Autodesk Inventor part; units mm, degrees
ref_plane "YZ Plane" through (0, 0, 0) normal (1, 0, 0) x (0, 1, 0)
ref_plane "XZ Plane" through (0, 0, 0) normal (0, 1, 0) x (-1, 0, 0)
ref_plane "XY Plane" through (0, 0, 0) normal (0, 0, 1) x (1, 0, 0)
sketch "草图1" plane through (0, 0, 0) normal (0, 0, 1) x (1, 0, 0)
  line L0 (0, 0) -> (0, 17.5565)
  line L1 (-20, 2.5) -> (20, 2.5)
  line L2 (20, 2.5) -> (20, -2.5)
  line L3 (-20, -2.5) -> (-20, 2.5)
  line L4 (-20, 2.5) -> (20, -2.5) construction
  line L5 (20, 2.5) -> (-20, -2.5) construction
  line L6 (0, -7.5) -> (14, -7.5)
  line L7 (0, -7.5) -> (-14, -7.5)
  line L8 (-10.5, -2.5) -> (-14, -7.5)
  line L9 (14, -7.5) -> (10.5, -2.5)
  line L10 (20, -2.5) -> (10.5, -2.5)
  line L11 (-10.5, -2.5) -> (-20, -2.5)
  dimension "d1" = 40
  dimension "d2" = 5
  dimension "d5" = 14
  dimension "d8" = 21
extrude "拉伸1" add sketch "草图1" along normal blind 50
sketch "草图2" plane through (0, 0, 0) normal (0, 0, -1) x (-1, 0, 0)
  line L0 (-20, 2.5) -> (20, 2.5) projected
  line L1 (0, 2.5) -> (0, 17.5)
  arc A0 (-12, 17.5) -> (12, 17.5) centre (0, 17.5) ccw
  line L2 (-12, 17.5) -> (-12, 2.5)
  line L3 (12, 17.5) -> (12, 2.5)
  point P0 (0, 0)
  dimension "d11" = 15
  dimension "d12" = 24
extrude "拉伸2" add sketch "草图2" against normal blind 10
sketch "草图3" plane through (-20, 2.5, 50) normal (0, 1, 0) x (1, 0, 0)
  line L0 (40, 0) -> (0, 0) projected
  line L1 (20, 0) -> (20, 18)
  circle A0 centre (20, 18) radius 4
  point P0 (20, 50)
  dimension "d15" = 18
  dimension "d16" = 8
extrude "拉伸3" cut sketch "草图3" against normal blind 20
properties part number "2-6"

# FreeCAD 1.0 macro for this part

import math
import FreeCAD as App
import Part
import Sketcher
from FreeCAD import Vector


def add_polygon(sketch, points):
    """Adds a closed chain of lines whose ends are joined by coincident constraints."""
    first, n = sketch.GeometryCount, len(points)
    for a, b in zip(points, points[1:] + points[:1]):
        sketch.addGeometry(Part.LineSegment(App.Vector(*a, 0), App.Vector(*b, 0)), False)
    for i in range(n):
        sketch.addConstraint(Sketcher.Constraint("Coincident", first + i, 2, first + (i + 1) % n, 1))

doc = App.newDocument("Part")
body = doc.addObject("PartDesign::Body", "Body")

sketch1 = body.newObject("Sketcher::SketchObject", "Sketch")
sketch1.AttachmentSupport = (doc.getObject("XY_Plane"), [""])
sketch1.MapMode = "FlatFace"
add_polygon(sketch1, [(20, 2.5), (-20, 2.5), (-20, -2.5), (-10.5, -2.5), (-14, -7.5), (14, -7.5), (10.5, -2.5), (20, -2.5)])
sketch1.addConstraint([
    Sketcher.Constraint("Horizontal", 0),
    Sketcher.Constraint("Vertical", 1),
    Sketcher.Constraint("Horizontal", 2),
    Sketcher.Constraint("Horizontal", 4),
    Sketcher.Constraint("Horizontal", 6),
    Sketcher.Constraint("Vertical", 7),
    Sketcher.Constraint("Symmetric", 0, 2, 6, 2, -1, 1),
    Sketcher.Constraint("Symmetric", 2, 2, 5, 2, -2),
    Sketcher.Constraint("Equal", 3, 5),
    Sketcher.Constraint("DistanceX", 0, 2, 0, 1, 40.0),
    Sketcher.Constraint("DistanceY", 1, 2, 1, 1, 5.0),
    Sketcher.Constraint("DistanceX", 3, 2, -1, 1, 14.0),
    Sketcher.Constraint("DistanceY", 3, 2, 2, 2, 5.0),
    Sketcher.Constraint("DistanceX", 2, 2, 5, 2, 21.0),
])
pad1 = body.newObject("PartDesign::Pad", "Pad")
pad1.Profile = sketch1
pad1.Length = 50

sketch2 = body.newObject("Sketcher::SketchObject", "Sketch001")
sketch2.AttachmentSupport = (doc.getObject("XY_Plane"), [""])
sketch2.MapMode = "FlatFace"
sketch2.addGeometry([
    Part.LineSegment(Vector(12, 17.5, 0), Vector(12, 2.5, 0)),
    Part.LineSegment(Vector(12, 2.5, 0), Vector(-12, 2.5, 0)),
    Part.LineSegment(Vector(-12, 2.5, 0), Vector(-12, 17.5, 0)),
    Part.ArcOfCircle(Part.Circle(Vector(0, 17.5, 0), Vector(0, 0, 1), 12), math.radians(180), math.radians(360)),
], False)
sketch2.addConstraint([
    Sketcher.Constraint("Coincident", 0, 2, 1, 1),
    Sketcher.Constraint("Coincident", 1, 2, 2, 1),
    Sketcher.Constraint("Tangent", 2, 2, 3, 1),
    Sketcher.Constraint("Tangent", 3, 2, 0, 1),
    Sketcher.Constraint("Vertical", 0),
    Sketcher.Constraint("Horizontal", 1),
    Sketcher.Constraint("Vertical", 2),
    Sketcher.Constraint("PointOnObject", 3, 3, -2),
    Sketcher.Constraint("Radius", 3, 12.0),
    Sketcher.Constraint("DistanceY", 0, 2, 0, 1, 15.0),
    Sketcher.Constraint("DistanceY", -1, 1, 3, 3, 17.5),
])
pad2 = body.newObject("PartDesign::Pad", "Pad001")
pad2.Profile = sketch2
pad2.Length = 10

sketch3 = body.newObject("Sketcher::SketchObject", "Sketch002")
sketch3.AttachmentSupport = (doc.getObject("XZ_Plane"), [""])
sketch3.MapMode = "FlatFace"
sketch3.AttachmentOffset = App.Placement(Vector(0, 0, -2.5), App.Rotation())
sketch3.addGeometry(Part.Circle(Vector(0, 32, 0), Vector(0, 0, 1), 4), False)
sketch3.addConstraint([
    Sketcher.Constraint("PointOnObject", 0, 3, -2),
    Sketcher.Constraint("Diameter", 0, 8.0),
    Sketcher.Constraint("DistanceY", -1, 1, 0, 3, 32.0),
])
pocket1 = body.newObject("PartDesign::Pocket", "Pocket")
pocket1.Profile = sketch3
pocket1.Length = 20
pocket1.Reversed = True

doc.recompute()
